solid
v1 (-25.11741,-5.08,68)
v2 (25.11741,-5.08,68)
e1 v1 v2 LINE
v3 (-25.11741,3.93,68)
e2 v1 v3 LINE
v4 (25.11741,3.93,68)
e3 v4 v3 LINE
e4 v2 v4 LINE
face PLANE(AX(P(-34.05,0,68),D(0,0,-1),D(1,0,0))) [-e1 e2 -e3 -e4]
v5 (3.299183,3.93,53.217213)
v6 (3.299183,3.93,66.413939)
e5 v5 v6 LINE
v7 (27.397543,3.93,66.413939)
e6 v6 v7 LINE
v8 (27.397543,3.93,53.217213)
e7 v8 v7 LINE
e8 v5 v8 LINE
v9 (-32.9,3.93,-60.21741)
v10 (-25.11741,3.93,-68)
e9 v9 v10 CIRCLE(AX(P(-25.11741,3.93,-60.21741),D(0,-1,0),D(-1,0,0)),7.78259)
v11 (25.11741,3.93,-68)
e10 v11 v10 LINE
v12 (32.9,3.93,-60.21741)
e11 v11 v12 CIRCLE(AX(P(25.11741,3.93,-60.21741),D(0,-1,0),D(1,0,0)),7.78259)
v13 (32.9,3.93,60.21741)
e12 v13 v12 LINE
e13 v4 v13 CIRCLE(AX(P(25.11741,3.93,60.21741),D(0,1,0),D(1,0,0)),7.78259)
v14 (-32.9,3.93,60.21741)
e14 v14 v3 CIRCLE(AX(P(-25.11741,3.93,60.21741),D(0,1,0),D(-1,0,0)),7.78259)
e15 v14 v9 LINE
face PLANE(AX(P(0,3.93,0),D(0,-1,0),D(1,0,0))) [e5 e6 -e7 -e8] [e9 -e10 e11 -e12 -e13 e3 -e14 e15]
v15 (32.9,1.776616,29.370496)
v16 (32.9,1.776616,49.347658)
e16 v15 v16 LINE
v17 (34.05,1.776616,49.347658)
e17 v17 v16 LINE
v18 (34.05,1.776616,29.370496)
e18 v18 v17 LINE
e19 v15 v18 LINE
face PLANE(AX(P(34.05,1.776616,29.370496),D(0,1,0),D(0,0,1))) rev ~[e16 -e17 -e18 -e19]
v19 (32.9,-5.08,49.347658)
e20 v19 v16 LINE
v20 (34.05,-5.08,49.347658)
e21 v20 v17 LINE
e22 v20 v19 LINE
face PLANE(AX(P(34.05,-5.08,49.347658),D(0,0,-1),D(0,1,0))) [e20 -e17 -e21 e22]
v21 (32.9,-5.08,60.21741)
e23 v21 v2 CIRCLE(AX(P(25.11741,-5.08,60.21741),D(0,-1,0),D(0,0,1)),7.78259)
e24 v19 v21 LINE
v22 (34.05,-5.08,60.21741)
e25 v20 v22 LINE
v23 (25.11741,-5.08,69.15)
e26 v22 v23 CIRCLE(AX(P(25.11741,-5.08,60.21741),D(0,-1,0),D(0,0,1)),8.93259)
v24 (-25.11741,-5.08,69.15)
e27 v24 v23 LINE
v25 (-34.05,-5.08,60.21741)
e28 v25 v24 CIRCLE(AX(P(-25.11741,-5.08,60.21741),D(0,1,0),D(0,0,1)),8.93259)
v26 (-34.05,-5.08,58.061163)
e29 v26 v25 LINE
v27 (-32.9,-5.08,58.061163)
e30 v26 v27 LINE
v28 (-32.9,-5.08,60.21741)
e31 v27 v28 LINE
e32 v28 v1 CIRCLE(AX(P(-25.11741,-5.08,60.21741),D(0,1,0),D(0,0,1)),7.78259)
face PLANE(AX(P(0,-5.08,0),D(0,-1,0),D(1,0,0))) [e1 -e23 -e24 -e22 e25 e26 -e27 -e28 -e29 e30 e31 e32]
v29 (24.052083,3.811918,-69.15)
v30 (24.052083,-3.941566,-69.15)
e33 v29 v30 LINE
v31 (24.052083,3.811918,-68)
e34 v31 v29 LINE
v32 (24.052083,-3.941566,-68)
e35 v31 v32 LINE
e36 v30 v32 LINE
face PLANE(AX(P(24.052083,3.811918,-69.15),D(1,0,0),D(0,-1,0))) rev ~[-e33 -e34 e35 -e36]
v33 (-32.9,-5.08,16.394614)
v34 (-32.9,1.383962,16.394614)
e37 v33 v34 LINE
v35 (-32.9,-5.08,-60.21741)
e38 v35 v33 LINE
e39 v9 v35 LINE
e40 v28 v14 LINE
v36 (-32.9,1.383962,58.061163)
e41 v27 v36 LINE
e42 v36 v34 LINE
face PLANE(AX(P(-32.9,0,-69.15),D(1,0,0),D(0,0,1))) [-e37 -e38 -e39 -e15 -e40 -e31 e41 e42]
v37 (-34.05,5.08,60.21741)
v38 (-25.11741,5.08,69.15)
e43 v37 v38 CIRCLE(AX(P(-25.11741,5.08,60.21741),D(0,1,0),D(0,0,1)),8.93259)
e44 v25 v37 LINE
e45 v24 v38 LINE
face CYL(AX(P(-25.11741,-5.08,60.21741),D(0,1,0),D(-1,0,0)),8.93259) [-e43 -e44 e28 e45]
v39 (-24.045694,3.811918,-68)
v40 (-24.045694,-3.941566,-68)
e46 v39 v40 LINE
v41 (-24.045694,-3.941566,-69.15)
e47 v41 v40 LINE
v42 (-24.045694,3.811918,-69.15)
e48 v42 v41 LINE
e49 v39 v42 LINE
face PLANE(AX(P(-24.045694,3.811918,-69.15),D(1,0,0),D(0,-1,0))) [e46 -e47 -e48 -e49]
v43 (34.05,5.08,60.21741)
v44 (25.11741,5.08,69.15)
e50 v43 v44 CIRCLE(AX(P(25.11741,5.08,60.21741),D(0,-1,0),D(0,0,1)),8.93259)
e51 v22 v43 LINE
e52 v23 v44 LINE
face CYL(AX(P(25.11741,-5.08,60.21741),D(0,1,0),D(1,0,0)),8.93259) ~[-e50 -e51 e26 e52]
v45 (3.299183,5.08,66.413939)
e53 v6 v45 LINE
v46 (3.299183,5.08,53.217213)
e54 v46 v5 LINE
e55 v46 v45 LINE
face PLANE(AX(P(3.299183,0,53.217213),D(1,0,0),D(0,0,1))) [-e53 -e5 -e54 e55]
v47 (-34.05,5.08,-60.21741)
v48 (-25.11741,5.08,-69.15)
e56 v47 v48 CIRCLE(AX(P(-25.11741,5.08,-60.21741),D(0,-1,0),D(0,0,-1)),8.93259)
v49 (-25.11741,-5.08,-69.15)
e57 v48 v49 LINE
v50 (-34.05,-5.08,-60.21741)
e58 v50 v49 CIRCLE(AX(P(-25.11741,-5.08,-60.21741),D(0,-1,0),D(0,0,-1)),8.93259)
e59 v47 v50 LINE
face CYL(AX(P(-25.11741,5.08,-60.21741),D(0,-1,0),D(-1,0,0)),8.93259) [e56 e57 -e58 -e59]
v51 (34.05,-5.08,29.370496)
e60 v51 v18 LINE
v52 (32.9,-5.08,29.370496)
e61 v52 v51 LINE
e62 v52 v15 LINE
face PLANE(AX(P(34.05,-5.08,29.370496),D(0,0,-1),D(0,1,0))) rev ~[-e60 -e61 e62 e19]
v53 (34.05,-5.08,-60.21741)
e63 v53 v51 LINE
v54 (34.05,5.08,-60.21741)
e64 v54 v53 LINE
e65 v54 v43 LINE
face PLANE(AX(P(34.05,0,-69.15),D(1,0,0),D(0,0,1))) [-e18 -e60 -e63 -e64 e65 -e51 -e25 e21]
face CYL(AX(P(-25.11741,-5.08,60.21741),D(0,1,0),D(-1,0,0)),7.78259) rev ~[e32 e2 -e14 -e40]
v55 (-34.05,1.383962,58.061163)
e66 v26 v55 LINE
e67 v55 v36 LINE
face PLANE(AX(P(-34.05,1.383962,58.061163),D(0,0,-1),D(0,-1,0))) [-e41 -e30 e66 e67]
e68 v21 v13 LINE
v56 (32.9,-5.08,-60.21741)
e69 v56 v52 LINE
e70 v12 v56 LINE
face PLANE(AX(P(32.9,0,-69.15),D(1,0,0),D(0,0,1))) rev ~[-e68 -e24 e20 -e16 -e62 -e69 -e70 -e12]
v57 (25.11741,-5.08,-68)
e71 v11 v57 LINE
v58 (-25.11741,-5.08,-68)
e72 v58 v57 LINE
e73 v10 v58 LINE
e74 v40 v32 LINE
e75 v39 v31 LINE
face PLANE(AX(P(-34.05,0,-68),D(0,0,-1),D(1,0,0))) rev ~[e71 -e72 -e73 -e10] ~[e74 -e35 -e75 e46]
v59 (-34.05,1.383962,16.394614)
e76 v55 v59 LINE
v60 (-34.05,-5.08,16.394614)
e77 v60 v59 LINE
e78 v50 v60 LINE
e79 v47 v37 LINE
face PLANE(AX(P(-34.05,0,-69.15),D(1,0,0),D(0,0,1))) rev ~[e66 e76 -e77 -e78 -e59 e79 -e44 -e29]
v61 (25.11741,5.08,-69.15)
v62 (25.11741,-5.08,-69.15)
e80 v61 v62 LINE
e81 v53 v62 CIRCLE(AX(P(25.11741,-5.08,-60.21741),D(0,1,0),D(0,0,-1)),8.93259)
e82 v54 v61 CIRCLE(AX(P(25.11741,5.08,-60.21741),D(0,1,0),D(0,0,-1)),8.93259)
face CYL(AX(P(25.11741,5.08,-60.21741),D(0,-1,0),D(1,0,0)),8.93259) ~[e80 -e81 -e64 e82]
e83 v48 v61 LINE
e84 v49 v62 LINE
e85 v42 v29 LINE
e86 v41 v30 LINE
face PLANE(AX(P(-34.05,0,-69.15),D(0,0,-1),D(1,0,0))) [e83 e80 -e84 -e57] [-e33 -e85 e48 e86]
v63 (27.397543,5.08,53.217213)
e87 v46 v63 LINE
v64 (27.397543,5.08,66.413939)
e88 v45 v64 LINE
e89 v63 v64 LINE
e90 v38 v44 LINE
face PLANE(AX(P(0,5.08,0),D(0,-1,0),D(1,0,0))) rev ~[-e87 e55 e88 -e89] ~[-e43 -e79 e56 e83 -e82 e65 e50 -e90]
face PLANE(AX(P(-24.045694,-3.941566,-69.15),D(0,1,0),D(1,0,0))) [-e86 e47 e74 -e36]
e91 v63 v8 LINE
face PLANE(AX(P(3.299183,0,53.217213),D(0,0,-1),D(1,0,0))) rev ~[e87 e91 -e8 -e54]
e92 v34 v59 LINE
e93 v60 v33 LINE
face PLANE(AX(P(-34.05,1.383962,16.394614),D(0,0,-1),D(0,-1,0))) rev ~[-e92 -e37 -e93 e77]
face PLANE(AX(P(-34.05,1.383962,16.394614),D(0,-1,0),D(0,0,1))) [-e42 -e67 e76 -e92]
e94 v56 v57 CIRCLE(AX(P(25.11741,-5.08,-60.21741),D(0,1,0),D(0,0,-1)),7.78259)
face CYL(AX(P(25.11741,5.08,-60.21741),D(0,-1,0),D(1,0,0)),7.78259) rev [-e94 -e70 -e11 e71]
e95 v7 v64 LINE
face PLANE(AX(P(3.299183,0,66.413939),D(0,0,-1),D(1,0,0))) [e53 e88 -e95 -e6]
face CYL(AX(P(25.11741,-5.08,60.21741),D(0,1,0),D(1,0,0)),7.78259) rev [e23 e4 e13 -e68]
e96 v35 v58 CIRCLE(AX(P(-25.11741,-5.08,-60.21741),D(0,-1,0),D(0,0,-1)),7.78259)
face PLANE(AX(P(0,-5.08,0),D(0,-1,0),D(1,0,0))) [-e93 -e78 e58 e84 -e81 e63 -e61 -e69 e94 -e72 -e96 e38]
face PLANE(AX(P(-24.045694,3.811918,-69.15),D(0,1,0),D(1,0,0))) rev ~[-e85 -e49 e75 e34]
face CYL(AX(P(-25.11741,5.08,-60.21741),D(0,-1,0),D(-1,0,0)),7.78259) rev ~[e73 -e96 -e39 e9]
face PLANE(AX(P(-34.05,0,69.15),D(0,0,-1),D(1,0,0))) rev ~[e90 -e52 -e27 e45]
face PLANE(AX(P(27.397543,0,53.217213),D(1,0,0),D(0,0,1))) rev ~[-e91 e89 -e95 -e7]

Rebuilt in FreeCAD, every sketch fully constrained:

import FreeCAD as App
import Part
import Sketcher

V = App.Vector


def edges_at(feature, points):
    """Names of the edges that pass closest to the given points."""
    edges = feature.Shape.Edges
    near = lambda p: min(range(len(edges)), key=lambda i: edges[i].distToShape(Part.Vertex(*p))[0])
    return sorted({f"Edge{near(p) + 1}" for p in points})


def faces_at(feature, points):
    """Names of the faces that lie closest to the given points."""
    faces = feature.Shape.Faces
    near = lambda p: min(range(len(faces)), key=lambda i: faces[i].distToShape(Part.Vertex(*p))[0])
    return sorted({f"Face{near(p) + 1}" for p in points})


def add_polygon(sketch, points):
    """Adds a closed chain of lines whose ends are joined by coincident constraints."""
    first, n = sketch.GeometryCount, len(points)
    for a, b in zip(points, points[1:] + points[:1]):
        sketch.addGeometry(Part.LineSegment(App.Vector(*a, 0), App.Vector(*b, 0)), False)
    for i in range(n):
        sketch.addConstraint(Sketcher.Constraint("Coincident", first + i, 2, first + (i + 1) % n, 1))

doc = App.newDocument("Part")
body = doc.addObject("PartDesign::Body", "Body")

# Sketch on XZ plane
sketch1 = body.newObject("Sketcher::SketchObject", "Sketch")
sketch1.AttachmentSupport = (doc.getObject("XZ_Plane"), [""])
sketch1.MapMode = "FlatFace"
add_polygon(sketch1, [(-34.05, 69.15), (-34.05, -69.15), (34.05, -69.15), (34.05, 69.15)])  # lines 0-3
sketch1.addConstraint([
    Sketcher.Constraint("Vertical", 0),
    Sketcher.Constraint("Horizontal", 1),
    Sketcher.Constraint("Vertical", 2),
    Sketcher.Constraint("Horizontal", 3),
    Sketcher.Constraint("Symmetric", 0, 2, 2, 2, -1, 1),
    Sketcher.Constraint("DistanceX", 1, 1, 1, 2, 68.1),
    Sketcher.Constraint("DistanceY", 0, 2, 0, 1, 138.3),
])
pad1 = body.newObject("PartDesign::Pad", "Pad")
pad1.Profile = sketch1
pad1.Length = 10.16
pad1.Midplane = True
doc.recompute()

fillet = body.newObject("PartDesign::Fillet", "Fillet")
fillet.Base = (pad1, edges_at(pad1, [
    (-34.05, 0, 69.15),
    (34.05, 0, 69.15),
    (34.05, 0, -69.15),
    (-34.05, 0, -69.15),
]))
fillet.Radius = 8.93259
doc.recompute()

thickness = body.newObject("PartDesign::Thickness", "Thickness")
thickness.Base = (fillet, faces_at(fillet, [(0, -5.08, 0)]))
thickness.Value = 1.15
thickness.Reversed = True
thickness.Join = "Arc"

# Sketch on XZ plane
sketch2 = body.newObject("Sketcher::SketchObject", "Sketch001")
sketch2.AttachmentSupport = (doc.getObject("XZ_Plane"), [""])
sketch2.MapMode = "FlatFace"
add_polygon(sketch2, [(3.299183, 66.413939), (3.299183, 53.217213), (27.397543, 53.217213), (27.397543, 66.413939)])  # lines 0-3
sketch2.addConstraint([
    Sketcher.Constraint("Vertical", 0),
    Sketcher.Constraint("Horizontal", 1),
    Sketcher.Constraint("Vertical", 2),
    Sketcher.Constraint("Horizontal", 3),
    Sketcher.Constraint("DistanceX", 1, 1, 1, 2, 24.09836),
    Sketcher.Constraint("DistanceY", 0, 2, 0, 1, 13.196725),
    Sketcher.Constraint("DistanceY", -1, 1, 2, 2, 66.413939),
    Sketcher.Constraint("DistanceX", -1, 1, 0, 2, 3.299183),
])
pocket1 = body.newObject("PartDesign::Pocket", "Pocket")
pocket1.Profile = sketch2
pocket1.Length = 25
pocket1.Midplane = True

# Sketch on XY plane
sketch3 = body.newObject("Sketcher::SketchObject", "Sketch002")
sketch3.AttachmentSupport = (doc.getObject("XY_Plane"), [""])
sketch3.MapMode = "FlatFace"
sketch3.AttachmentOffset = App.Placement(V(0, 0, -69.15), App.Rotation())
add_polygon(sketch3, [(-24.045694, -3.941566), (-24.045694, 3.811918), (24.052083, 3.811918), (24.052083, -3.941566)])  # lines 0-3
sketch3.addConstraint([
    Sketcher.Constraint("Vertical", 0),
    Sketcher.Constraint("Horizontal", 1),
    Sketcher.Constraint("Vertical", 2),
    Sketcher.Constraint("Horizontal", 3),
    Sketcher.Constraint("DistanceX", 1, 1, 1, 2, 48.097777),
    Sketcher.Constraint("DistanceY", 0, 1, 0, 2, 7.753484),
    Sketcher.Constraint("DistanceX", 0, 2, -1, 1, 24.045694),
    Sketcher.Constraint("DistanceY", -1, 1, 0, 2, 3.811918),
])
pocket2 = body.newObject("PartDesign::Pocket", "Pocket001")
pocket2.Profile = sketch3
pocket2.Length = 25
pocket2.Midplane = True

# Sketch on YZ plane
sketch4 = body.newObject("Sketcher::SketchObject", "Sketch003")
sketch4.AttachmentSupport = (doc.getObject("YZ_Plane"), [""])
sketch4.MapMode = "FlatFace"
sketch4.AttachmentOffset = App.Placement(V(0, 0, -34.05), App.Rotation())
add_polygon(sketch4, [(1.383962, 58.061163), (1.383962, 16.394614), (-8.734654, 16.394614), (-8.734654, 58.061163)])  # lines 0-3
sketch4.addConstraint([
    Sketcher.Constraint("Vertical", 0),
    Sketcher.Constraint("Horizontal", 1),
    Sketcher.Constraint("Vertical", 2),
    Sketcher.Constraint("Horizontal", 3),
    Sketcher.Constraint("DistanceY", 0, 2, 0, 1, 41.666549),
    Sketcher.Constraint("DistanceX", 1, 2, 1, 1, 10.118616),
    Sketcher.Constraint("DistanceX", -1, 1, 0, 2, 1.383962),
    Sketcher.Constraint("DistanceY", -1, 1, 0, 2, 16.394614),
])
pocket3 = body.newObject("PartDesign::Pocket", "Pocket002")
pocket3.Profile = sketch4
pocket3.Length = 25
pocket3.Midplane = True

# Sketch on YZ plane
sketch5 = body.newObject("Sketcher::SketchObject", "Sketch004")
sketch5.AttachmentSupport = (doc.getObject("YZ_Plane"), [""])
sketch5.MapMode = "FlatFace"
sketch5.AttachmentOffset = App.Placement(V(0, 0, 34.05), App.Rotation())
add_polygon(sketch5, [(-5.08, 49.347658), (-5.08, 29.370496), (1.776616, 29.370496), (1.776616, 49.347658)])  # lines 0-3
sketch5.addConstraint([
    Sketcher.Constraint("Vertical", 0),
    Sketcher.Constraint("Horizontal", 1),
    Sketcher.Constraint("Vertical", 2),
    Sketcher.Constraint("Horizontal", 3),
    Sketcher.Constraint("DistanceX", 0, 2, -1, 1, 5.08),
    Sketcher.Constraint("DistanceX", 1, 1, 1, 2, 6.856616),
    Sketcher.Constraint("DistanceY", 0, 2, 0, 1, 19.977162),
    Sketcher.Constraint("DistanceY", -1, 1, 2, 2, 49.347658),
])
pocket4 = body.newObject("PartDesign::Pocket", "Pocket003")
pocket4.Profile = sketch5
pocket4.Length = 25
pocket4.Midplane = True

doc.recompute()
